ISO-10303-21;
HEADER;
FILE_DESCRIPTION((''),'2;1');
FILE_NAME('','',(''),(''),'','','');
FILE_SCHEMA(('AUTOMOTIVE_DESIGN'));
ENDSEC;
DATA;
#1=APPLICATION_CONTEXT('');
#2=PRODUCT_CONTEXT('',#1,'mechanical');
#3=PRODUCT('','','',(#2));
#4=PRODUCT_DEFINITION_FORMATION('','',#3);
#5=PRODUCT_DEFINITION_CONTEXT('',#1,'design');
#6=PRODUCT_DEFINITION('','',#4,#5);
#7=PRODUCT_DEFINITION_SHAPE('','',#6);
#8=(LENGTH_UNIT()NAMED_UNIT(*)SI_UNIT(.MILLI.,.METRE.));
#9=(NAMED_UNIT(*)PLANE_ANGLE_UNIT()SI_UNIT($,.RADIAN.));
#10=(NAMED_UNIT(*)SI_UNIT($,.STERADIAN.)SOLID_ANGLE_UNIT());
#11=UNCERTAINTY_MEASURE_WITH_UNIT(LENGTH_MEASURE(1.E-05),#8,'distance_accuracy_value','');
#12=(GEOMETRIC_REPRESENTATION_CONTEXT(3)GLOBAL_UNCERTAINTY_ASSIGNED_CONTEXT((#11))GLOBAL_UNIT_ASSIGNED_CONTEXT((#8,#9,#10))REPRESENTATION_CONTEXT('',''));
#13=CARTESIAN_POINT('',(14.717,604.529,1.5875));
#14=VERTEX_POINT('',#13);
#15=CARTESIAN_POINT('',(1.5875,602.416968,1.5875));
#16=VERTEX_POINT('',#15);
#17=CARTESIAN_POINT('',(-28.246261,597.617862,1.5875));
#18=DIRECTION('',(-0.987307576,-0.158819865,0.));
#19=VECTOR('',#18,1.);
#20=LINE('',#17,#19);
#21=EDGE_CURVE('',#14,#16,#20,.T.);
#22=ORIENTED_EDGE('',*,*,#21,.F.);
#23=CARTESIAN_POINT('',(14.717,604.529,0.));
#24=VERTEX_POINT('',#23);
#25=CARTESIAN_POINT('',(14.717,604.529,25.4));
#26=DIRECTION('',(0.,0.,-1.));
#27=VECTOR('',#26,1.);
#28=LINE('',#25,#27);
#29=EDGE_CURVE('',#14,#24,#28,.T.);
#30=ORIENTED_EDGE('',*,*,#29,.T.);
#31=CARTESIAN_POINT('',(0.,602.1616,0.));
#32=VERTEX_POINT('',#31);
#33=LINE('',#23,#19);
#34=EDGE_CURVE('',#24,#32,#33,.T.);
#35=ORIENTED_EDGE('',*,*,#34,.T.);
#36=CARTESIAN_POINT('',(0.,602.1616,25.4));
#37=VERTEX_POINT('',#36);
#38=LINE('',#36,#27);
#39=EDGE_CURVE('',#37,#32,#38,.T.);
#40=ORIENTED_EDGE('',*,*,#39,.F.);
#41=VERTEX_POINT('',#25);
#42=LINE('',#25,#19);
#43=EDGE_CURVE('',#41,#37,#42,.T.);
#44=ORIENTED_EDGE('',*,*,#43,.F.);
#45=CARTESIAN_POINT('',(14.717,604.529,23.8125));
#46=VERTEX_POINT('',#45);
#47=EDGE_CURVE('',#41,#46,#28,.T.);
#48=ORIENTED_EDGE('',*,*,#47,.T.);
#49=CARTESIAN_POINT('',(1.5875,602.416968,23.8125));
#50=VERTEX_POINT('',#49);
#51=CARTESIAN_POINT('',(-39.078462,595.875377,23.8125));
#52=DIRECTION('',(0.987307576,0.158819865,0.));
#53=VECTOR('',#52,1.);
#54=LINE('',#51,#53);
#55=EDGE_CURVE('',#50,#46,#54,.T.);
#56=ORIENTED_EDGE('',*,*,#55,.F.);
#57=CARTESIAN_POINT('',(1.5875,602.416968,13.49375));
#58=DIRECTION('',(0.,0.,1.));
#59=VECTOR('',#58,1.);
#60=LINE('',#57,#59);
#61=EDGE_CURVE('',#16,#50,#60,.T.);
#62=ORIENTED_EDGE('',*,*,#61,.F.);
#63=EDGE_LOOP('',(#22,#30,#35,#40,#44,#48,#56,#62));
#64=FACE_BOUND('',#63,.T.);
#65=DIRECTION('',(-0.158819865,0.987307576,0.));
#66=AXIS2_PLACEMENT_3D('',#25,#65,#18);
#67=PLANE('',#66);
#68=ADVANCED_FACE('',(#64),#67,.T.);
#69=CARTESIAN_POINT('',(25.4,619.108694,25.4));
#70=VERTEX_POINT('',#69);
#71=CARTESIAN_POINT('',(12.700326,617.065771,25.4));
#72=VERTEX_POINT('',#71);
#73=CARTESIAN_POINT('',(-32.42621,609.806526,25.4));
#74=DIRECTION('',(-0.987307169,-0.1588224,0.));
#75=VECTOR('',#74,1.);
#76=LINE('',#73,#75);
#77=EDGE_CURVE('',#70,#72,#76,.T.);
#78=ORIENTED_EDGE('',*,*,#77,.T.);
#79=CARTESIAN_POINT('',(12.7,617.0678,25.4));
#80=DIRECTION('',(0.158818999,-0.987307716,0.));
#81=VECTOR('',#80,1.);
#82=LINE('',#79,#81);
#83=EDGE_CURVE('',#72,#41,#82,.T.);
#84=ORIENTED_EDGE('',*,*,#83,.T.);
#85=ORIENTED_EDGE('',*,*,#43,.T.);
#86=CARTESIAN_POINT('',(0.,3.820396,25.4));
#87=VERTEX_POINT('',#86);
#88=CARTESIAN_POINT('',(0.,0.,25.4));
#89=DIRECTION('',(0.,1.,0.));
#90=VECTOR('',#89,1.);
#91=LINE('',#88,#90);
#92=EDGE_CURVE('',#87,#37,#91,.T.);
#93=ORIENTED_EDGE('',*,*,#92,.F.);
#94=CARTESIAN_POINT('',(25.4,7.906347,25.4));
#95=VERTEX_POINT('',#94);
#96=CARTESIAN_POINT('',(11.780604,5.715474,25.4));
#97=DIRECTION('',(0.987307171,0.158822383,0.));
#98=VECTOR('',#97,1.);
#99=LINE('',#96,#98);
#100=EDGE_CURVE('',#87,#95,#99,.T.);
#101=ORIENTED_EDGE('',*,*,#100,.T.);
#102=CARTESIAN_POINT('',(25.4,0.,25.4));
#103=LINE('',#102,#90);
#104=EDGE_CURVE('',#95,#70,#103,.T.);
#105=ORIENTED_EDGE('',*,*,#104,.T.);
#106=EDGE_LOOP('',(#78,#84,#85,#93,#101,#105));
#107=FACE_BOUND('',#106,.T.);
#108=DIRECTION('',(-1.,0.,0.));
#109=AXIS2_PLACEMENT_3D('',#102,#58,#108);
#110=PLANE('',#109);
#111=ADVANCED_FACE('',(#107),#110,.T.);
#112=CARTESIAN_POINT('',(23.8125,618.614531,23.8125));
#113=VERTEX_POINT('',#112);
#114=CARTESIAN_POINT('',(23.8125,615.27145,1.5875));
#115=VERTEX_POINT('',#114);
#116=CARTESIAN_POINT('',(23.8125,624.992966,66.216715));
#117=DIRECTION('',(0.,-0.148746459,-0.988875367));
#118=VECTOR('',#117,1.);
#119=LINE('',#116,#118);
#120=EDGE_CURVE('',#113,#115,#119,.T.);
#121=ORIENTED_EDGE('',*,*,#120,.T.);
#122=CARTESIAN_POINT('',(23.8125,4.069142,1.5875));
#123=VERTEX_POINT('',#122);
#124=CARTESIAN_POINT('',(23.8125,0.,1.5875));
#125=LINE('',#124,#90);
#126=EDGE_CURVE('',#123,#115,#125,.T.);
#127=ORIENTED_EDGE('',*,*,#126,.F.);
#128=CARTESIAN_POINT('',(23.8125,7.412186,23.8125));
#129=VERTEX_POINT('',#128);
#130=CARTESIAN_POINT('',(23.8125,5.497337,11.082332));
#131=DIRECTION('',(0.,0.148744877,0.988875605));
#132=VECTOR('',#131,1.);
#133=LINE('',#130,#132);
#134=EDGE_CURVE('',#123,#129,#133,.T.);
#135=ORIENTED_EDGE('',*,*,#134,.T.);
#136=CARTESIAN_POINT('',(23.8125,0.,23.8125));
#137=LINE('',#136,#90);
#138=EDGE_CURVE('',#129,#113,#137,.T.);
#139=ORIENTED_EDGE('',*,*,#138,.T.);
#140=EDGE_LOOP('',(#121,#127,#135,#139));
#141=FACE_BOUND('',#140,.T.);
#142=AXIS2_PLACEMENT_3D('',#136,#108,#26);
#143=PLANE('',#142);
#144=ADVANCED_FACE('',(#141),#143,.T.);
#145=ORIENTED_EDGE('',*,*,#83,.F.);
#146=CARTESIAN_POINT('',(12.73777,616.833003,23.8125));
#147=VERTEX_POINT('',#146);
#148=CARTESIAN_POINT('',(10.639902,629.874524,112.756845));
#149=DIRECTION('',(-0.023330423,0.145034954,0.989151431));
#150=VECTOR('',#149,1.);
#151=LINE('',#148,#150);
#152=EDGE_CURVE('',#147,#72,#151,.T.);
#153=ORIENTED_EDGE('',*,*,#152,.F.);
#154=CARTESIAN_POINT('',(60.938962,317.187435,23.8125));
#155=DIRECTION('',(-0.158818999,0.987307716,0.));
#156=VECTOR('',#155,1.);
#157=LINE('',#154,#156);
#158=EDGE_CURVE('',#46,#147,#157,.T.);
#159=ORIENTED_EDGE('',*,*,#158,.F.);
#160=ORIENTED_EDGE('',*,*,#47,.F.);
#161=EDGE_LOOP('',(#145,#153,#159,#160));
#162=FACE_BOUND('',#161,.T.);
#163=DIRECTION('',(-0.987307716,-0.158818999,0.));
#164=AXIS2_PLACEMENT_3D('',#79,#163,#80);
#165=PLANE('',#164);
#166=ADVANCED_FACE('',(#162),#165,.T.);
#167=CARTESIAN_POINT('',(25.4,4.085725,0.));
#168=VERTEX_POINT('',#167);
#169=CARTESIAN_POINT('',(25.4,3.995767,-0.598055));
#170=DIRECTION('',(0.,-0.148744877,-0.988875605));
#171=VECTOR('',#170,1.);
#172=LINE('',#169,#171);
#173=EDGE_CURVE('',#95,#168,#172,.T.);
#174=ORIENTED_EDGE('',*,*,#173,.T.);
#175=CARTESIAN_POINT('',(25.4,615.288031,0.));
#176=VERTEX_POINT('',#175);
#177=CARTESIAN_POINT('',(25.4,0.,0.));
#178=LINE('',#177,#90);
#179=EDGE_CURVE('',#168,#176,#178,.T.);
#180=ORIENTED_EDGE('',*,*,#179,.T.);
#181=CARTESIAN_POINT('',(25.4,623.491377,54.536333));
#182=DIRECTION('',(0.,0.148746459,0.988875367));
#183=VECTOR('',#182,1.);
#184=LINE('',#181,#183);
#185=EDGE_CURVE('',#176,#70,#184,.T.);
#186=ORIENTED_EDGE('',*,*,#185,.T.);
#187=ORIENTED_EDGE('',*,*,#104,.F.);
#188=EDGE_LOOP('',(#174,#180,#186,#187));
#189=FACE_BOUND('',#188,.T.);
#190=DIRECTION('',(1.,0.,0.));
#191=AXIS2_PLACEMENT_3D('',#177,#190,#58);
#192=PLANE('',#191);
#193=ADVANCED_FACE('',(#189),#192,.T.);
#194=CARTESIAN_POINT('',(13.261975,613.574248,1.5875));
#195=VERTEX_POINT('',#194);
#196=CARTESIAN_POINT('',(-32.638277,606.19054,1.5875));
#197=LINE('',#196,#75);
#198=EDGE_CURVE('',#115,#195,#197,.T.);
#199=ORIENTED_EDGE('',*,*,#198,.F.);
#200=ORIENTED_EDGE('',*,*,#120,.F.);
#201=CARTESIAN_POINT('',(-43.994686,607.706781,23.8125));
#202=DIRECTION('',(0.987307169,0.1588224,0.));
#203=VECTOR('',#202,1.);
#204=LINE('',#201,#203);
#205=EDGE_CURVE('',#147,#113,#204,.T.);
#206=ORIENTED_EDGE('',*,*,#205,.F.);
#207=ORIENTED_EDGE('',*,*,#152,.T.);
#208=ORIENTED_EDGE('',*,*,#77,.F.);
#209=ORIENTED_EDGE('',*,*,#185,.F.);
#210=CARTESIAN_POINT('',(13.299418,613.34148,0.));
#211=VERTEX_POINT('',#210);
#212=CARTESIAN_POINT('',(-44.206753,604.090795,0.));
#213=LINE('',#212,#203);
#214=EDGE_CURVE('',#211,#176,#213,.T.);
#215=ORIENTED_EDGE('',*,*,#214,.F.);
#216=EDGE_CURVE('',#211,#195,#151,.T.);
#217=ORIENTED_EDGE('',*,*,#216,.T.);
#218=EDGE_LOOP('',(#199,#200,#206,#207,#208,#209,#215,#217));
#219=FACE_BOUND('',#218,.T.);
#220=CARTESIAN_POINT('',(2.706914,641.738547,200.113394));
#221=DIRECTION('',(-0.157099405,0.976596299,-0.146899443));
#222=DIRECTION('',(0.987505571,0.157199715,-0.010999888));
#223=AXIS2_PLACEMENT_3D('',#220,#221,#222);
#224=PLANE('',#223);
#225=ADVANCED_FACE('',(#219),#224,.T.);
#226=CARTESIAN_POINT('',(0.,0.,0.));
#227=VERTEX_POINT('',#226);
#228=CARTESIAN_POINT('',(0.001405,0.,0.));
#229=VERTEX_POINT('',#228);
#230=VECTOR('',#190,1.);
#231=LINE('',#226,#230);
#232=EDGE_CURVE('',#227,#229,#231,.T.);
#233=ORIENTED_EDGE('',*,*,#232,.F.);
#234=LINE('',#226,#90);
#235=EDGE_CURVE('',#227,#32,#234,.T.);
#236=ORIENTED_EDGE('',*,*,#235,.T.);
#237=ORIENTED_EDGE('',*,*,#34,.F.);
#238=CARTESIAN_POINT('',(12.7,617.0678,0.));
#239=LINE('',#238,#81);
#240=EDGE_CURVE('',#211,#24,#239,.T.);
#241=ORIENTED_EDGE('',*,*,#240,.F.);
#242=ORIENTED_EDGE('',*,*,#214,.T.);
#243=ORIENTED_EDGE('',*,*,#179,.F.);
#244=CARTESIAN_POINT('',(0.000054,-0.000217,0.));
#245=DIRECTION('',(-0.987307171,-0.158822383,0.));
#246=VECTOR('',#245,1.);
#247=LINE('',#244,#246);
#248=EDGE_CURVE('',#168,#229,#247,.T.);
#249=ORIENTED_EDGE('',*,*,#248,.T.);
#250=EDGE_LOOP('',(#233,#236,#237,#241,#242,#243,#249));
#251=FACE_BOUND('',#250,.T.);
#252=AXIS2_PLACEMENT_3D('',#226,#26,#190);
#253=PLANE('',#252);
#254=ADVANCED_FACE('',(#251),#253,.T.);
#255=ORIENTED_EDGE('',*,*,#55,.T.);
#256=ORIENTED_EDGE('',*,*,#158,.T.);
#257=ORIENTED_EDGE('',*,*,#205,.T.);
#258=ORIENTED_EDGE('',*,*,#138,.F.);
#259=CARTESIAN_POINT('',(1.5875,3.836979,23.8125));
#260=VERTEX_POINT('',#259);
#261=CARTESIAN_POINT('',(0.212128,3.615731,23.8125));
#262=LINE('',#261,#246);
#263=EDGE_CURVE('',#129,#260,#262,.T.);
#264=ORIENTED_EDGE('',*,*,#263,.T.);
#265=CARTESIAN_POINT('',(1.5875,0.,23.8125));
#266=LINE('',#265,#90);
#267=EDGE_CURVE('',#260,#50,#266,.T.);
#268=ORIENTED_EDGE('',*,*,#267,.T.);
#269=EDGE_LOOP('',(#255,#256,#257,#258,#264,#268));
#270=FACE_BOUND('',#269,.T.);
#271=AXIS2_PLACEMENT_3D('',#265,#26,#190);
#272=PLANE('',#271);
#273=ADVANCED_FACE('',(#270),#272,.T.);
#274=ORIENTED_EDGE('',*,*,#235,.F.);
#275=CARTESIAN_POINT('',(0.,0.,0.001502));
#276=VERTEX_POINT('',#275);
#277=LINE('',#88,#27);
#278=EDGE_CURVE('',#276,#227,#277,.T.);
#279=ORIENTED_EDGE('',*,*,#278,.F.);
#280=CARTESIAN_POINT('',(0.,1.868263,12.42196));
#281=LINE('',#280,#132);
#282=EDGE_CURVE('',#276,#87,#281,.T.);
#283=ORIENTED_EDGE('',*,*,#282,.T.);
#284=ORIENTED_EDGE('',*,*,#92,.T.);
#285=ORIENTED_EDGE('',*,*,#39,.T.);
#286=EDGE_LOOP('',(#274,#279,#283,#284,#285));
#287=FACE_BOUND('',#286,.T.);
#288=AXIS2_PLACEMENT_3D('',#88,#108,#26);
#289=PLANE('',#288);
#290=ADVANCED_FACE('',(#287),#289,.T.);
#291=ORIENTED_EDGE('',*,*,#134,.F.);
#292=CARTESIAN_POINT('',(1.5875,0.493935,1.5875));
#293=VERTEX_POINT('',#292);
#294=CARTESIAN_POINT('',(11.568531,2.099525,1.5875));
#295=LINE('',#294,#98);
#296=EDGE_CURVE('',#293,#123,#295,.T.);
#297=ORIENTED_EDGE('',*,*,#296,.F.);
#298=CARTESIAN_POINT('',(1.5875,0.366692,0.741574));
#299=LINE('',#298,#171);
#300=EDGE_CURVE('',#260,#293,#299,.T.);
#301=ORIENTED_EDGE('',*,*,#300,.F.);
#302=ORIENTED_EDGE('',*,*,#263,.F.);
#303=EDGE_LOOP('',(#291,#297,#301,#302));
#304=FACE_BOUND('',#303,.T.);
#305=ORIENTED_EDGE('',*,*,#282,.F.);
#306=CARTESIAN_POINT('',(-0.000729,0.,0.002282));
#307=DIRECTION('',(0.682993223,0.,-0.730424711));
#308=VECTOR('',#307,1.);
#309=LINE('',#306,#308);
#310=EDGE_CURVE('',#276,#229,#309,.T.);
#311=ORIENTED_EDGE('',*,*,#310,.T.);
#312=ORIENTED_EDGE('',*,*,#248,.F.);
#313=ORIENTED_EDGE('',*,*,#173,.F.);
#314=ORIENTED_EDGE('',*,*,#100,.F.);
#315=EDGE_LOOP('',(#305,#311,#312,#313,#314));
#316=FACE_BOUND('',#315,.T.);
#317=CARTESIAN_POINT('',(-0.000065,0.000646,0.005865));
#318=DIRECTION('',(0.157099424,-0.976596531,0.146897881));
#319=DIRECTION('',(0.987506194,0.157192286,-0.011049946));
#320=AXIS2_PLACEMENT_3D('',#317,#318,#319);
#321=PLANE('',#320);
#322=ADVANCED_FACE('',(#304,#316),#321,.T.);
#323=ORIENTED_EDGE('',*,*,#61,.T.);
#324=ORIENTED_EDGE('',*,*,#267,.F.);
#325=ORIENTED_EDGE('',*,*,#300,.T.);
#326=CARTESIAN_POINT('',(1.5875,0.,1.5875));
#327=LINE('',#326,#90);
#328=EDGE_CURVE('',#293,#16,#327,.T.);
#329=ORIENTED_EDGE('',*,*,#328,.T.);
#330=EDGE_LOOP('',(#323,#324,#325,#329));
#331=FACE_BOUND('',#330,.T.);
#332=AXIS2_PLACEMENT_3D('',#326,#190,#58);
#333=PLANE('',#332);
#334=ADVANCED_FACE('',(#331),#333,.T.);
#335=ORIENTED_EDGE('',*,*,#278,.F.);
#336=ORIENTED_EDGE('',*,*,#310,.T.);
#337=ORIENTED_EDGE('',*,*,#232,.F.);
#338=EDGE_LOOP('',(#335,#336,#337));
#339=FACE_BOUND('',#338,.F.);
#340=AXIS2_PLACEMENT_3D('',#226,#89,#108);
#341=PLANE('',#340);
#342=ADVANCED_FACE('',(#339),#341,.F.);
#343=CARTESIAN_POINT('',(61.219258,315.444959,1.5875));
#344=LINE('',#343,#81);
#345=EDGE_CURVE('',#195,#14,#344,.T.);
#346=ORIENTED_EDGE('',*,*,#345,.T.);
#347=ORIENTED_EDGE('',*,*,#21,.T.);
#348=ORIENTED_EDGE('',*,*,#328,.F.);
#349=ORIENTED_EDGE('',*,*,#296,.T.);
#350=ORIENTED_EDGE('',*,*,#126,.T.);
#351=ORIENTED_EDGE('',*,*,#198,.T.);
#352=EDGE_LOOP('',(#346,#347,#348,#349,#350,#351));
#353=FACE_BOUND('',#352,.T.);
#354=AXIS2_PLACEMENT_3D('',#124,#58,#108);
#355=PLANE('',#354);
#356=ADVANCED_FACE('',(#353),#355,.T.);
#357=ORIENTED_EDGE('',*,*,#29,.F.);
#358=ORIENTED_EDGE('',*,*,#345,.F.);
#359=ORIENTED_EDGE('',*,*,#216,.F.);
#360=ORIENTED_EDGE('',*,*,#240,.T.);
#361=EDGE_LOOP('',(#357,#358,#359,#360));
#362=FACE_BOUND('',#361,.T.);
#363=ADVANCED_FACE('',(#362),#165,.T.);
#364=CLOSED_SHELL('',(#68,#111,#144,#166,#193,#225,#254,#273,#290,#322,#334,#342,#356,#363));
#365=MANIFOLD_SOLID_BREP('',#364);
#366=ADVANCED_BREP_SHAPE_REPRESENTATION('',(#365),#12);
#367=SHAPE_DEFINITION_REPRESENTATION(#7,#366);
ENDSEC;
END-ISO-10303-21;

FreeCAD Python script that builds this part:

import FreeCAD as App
import Part
import Sketcher
Q = App.Units.Quantity


def add_polygon(sketch, points):
    """Adds a closed chain of lines whose ends are joined by coincident constraints."""
    first, n = sketch.GeometryCount, len(points)
    for a, b in zip(points, points[1:] + points[:1]):
        sketch.addGeometry(Part.LineSegment(App.Vector(*a, 0), App.Vector(*b, 0)), False)
    for i in range(n):
        sketch.addConstraint(Sketcher.Constraint("Coincident", first + i, 2, first + (i + 1) % n, 1))

doc = App.newDocument("Part")
body = doc.addObject("PartDesign::Body", "Body")

# Sketch on XZ plane
sketch1 = body.newObject("Sketcher::SketchObject", "Sketch")
sketch1.AttachmentSupport = (doc.getObject("XZ_Plane"), [""])
sketch1.MapMode = "FlatFace"
add_polygon(sketch1, [(25, 0), (0, 0), (0, 25), (25, 25)])  # lines 0-3
add_polygon(sketch1, [(24, 24), (2, 24), (2, 2), (24, 2)])  # lines 4-7
sketch1.addConstraint(Sketcher.Constraint("Horizontal", 0))
sketch1.addConstraint(Sketcher.Constraint("Vertical", 1))
sketch1.addConstraint(Sketcher.Constraint("Horizontal", 2))
sketch1.addConstraint(Sketcher.Constraint("Vertical", 3))
sketch1.addConstraint(Sketcher.Constraint("Horizontal", 4))
sketch1.addConstraint(Sketcher.Constraint("Vertical", 5))
sketch1.addConstraint(Sketcher.Constraint("Horizontal", 6))
sketch1.addConstraint(Sketcher.Constraint("Vertical", 7))
sketch1.addConstraint(Sketcher.Constraint("Coincident", 0, 2, -1, 1))
sketch1.addConstraint(Sketcher.Constraint("Equal", 2, 1))
sketch1.addConstraint(Sketcher.Constraint("Equal", 6, 5))
sketch1.addConstraint(Sketcher.Constraint("DistanceX", 0, 2, 0, 1, Q("1 in")))
sketch1.addConstraint(Sketcher.Constraint("DistanceX", -1, 1, 4, 2, Q("0.0625 in")))
sketch1.addConstraint(Sketcher.Constraint("DistanceY", -1, 1, 5, 2, Q("0.0625 in")))
sketch1.addConstraint(Sketcher.Constraint("DistanceY", 4, 2, 1, 2, Q("0.0625 in")))
pad1 = body.newObject("PartDesign::Pad", "Pad")
pad1.Profile = sketch1
pad1.Length = Q("40 in")
pad1.Reversed = True

# Sketch on an angled plane
sketch2 = body.newObject("Sketcher::SketchObject", "Sketch001")
sketch2.Placement = App.Placement(App.Vector(102.0769, 3.5287, 0.7496), App.Rotation(App.Vector(-0.157099424, 0.976596531, -0.146897881), App.Vector(0.987506195, 0.157192286, -0.011049946), App.Vector(0.012299875, -0.146798507, -0.989089941), "ZXY"))
add_polygon(sketch2, [(-1, -114), (13, -101), (13, -75), (-1, -75)])  # lines 0-3
sketch2.addConstraint(Sketcher.Constraint("Vertical", 1))
sketch2.addConstraint(Sketcher.Constraint("Horizontal", 2))
sketch2.addConstraint(Sketcher.Constraint("Vertical", 3))
sketch2.addConstraint(Sketcher.Constraint("DistanceX", -1, 1, 0, 2, Q("0.5 in")))
sketch2.addConstraint(Sketcher.Constraint("Distance", 0, Q("0.7284 in")))
sketch2.addConstraint(Sketcher.Constraint("DistanceX", 2, 2, 2, 1, 13.8984))
sketch2.addConstraint(Sketcher.Constraint("DistanceY", 1, 1, 1, 2, 26.2754))
sketch2.addConstraint(Sketcher.Constraint("DistanceY", 0, 2, -1, 1, 101.348))
pocket1 = body.newObject("PartDesign::Pocket", "Pocket")
pocket1.Profile = sketch2
pocket1.Length = Q("100 in")
pocket1.Midplane = True

# Sketch on an angled plane
sketch3 = body.newObject("Sketcher::SketchObject", "Sketch002")
sketch3.Placement = App.Placement(App.Vector(2.7066, 641.7405, 200.1131), App.Rotation(App.Vector(0.987505571, 0.157199715, -0.010999888), App.Vector(0.012350101, -0.146792094, -0.989090268), App.Vector(-0.157099405, 0.976596299, -0.146899443), "ZXY"))
add_polygon(sketch3, [(-64, 401), (-64, -44), (260, -44), (260, 401)])  # lines 0-3
sketch3.addConstraint(Sketcher.Constraint("Vertical", 0))
sketch3.addConstraint(Sketcher.Constraint("Horizontal", 1))
sketch3.addConstraint(Sketcher.Constraint("Vertical", 2))
sketch3.addConstraint(Sketcher.Constraint("Horizontal", 3))
sketch3.addConstraint(Sketcher.Constraint("DistanceX", 1, 1, 1, 2, Q("12.7731 in")))
sketch3.addConstraint(Sketcher.Constraint("DistanceY", 0, 2, 0, 1, 444.6352))
sketch3.addConstraint(Sketcher.Constraint("DistanceX", 0, 2, -1, 1, Q("2.5197 in")))
sketch3.addConstraint(Sketcher.Constraint("DistanceY", 0, 2, -1, 1, Q("1.7206 in")))
pocket2 = body.newObject("PartDesign::Pocket", "Pocket001")
pocket2.Profile = sketch3
pocket2.Length = Q("100 in")
pocket2.Reversed = True

# Sketch on XY plane
sketch4 = body.newObject("Sketcher::SketchObject", "Sketch003")
sketch4.AttachmentSupport = (doc.getObject("XY_Plane"), [""])
sketch4.MapMode = "FlatFace"
sketch4.AttachmentOffset = App.Placement(App.Vector(0, 0, 1 * 25.4), App.Rotation())
add_polygon(sketch4, [(15, 605), (13, 617), (0, 615), (0, 602)])  # lines 0-3
sketch4.addConstraint(Sketcher.Constraint("Vertical", 2))
sketch4.addConstraint(Sketcher.Constraint("PointOnObject", 1, 2, -2))
sketch4.addConstraint(Sketcher.Constraint("Perpendicular", 0, 1))
sketch4.addConstraint(Sketcher.Constraint("Parallel", 1, 3))
sketch4.addConstraint(Sketcher.Constraint("Distance", 0, Q("0.5 in")))
sketch4.addConstraint(Sketcher.Constraint("DistanceX", -1, 1, 0, 2, Q("0.5 in")))
sketch4.addConstraint(Sketcher.Constraint("DistanceY", -1, 1, 0, 2, Q("24.294 in")))
sketch4.addConstraint(Sketcher.Constraint("DistanceY", 2, 2, 2, 1, 12.8633))
pocket3 = body.newObject("PartDesign::Pocket", "Pocket002")
pocket3.Profile = sketch4
pocket3.Length = Q("1 in")

doc.recompute()
